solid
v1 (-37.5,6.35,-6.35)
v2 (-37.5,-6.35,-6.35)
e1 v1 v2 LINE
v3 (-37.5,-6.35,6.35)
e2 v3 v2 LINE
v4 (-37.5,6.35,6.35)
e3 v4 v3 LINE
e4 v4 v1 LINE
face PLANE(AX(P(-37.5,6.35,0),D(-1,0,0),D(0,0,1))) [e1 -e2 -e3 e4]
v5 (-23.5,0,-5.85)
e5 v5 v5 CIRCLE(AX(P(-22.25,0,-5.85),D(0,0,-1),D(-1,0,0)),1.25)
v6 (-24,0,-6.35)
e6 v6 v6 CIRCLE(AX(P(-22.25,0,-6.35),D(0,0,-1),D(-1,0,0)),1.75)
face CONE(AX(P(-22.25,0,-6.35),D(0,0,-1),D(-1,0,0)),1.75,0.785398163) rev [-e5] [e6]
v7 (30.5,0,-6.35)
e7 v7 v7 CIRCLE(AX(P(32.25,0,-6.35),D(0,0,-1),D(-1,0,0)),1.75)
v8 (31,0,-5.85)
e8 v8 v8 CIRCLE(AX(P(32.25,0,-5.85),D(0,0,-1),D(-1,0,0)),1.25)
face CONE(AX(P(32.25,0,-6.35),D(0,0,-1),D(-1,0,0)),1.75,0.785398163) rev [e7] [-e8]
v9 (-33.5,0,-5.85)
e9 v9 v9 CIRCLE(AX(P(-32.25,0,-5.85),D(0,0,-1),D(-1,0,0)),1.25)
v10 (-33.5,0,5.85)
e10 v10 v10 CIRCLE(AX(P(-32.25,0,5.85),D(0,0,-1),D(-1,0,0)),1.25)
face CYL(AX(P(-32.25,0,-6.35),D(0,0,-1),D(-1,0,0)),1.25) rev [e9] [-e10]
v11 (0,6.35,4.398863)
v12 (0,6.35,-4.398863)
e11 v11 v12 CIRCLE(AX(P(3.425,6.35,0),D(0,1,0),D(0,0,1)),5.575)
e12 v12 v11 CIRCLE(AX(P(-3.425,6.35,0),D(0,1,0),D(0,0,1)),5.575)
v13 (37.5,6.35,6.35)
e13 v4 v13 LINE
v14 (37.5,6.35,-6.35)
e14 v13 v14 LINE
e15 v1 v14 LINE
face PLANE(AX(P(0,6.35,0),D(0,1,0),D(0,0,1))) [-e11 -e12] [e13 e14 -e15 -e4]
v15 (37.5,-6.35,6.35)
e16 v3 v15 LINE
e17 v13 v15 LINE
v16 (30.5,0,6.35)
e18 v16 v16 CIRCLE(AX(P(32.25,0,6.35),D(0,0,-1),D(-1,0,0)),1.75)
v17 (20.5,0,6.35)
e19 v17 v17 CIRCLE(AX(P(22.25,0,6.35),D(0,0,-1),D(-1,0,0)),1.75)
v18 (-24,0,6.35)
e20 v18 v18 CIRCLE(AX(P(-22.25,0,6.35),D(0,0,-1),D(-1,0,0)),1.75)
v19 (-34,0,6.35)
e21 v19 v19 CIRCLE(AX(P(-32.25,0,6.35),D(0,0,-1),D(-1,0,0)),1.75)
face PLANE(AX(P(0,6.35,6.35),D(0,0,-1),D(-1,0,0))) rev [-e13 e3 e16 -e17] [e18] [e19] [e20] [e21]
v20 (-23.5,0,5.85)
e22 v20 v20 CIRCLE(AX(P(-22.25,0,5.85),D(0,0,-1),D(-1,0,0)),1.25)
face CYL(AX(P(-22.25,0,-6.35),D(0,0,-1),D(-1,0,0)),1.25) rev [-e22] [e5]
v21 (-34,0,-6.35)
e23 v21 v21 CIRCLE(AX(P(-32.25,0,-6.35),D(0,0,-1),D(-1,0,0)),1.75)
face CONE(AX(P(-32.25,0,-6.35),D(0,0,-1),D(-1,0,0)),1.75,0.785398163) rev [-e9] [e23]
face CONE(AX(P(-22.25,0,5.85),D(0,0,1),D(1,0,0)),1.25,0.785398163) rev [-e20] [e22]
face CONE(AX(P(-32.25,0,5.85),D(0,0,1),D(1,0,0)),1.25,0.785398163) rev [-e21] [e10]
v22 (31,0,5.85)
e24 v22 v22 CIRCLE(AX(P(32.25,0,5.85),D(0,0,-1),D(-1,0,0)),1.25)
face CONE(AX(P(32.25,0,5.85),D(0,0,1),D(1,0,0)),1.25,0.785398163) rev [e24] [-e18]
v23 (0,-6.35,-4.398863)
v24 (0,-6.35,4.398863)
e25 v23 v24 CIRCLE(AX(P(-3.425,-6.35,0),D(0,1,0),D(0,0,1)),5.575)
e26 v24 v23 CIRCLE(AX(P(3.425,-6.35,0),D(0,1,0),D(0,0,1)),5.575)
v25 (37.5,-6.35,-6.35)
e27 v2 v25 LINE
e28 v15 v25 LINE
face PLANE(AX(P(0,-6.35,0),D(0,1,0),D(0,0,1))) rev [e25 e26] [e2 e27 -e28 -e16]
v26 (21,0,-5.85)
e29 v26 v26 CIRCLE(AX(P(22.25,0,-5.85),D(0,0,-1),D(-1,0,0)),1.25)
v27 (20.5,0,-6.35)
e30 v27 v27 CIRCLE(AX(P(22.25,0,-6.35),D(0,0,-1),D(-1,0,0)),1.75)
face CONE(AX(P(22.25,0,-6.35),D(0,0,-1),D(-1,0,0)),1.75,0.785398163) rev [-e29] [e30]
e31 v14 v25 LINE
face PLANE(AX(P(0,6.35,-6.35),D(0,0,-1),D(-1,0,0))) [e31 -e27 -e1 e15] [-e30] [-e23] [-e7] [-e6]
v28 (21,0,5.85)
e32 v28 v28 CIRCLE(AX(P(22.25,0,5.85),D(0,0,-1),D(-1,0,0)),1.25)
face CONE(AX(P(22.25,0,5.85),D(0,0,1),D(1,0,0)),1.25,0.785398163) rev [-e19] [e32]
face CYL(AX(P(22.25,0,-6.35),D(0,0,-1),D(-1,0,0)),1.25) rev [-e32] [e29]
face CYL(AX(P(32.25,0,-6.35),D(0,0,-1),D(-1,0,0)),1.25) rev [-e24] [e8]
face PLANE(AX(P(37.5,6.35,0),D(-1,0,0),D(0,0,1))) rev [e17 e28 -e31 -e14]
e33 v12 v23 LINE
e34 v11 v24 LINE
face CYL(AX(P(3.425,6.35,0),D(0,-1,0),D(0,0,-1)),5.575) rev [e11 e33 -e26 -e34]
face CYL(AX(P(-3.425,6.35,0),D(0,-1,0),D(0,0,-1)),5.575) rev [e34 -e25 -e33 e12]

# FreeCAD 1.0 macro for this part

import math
import FreeCAD as App
import Part
import Sketcher
from FreeCAD import Vector
Q = App.Units.Quantity


def add_polygon(sketch, points):
    """Adds a closed chain of lines whose ends are joined by coincident constraints."""
    first, n = sketch.GeometryCount, len(points)
    for a, b in zip(points, points[1:] + points[:1]):
        sketch.addGeometry(Part.LineSegment(App.Vector(*a, 0), App.Vector(*b, 0)), False)
    for i in range(n):
        sketch.addConstraint(Sketcher.Constraint("Coincident", first + i, 2, first + (i + 1) % n, 1))

doc = App.newDocument("Part")
body = doc.addObject("PartDesign::Body", "Body")

sketch1 = body.newObject("Sketcher::SketchObject", "Sketch")
sketch1.AttachmentSupport = (doc.getObject("XZ_Plane"), [""])
sketch1.MapMode = "FlatFace"
add_polygon(sketch1, [(-37.5, -6.35), (-37.5, 6.35), (37.5, 6.35), (37.5, -6.35)])
sketch1.addGeometry(Part.ArcOfCircle(Part.Circle(Vector(3.425, 0, 0), Vector(0, 0, 1), 5.575), math.radians(0), math.radians(127.904689)), False)
sketch1.addGeometry(Part.ArcOfCircle(Part.Circle(Vector(-3.425, 0, 0), Vector(0, 0, 1), 5.575), math.radians(52.095311), math.radians(307.904689)), False)
sketch1.addGeometry(Part.ArcOfCircle(Part.Circle(Vector(3.425, 0, 0), Vector(0, 0, 1), 5.575), math.radians(-127.904689), math.radians(0)), False)
sketch1.addConstraint([
    Sketcher.Constraint("Coincident", 4, 2, 5, 1),
    Sketcher.Constraint("Coincident", 5, 2, 6, 1),
    Sketcher.Constraint("Tangent", 6, 2, 4, 1),
    Sketcher.Constraint("Vertical", 0),
    Sketcher.Constraint("Horizontal", 1),
    Sketcher.Constraint("Vertical", 2),
    Sketcher.Constraint("Horizontal", 3),
    Sketcher.Constraint("Equal", 4, 5),
    Sketcher.Constraint("Equal", 5, 6),
    Sketcher.Constraint("Symmetric", 4, 3, 5, 3, -1, 1),
    Sketcher.Constraint("Symmetric", 0, 2, 2, 2, -1, 1),
    Sketcher.Constraint("PointOnObject", 4, 3, -1),
    Sketcher.Constraint("PointOnObject", 6, 2, -1),
    Sketcher.Constraint("DistanceX", 1, 1, 1, 2, Q("75 mm")),
    Sketcher.Constraint("DistanceY", 0, 1, 0, 2, Q("12.7 mm")),
    Sketcher.Constraint("DistanceX", -1, 1, 6, 2, Q("9 mm")),
    Sketcher.Constraint("Radius", 4, Q("5.575 mm")),
])
pad1 = body.newObject("PartDesign::Pad", "Pad")
pad1.Profile = sketch1
pad1.Length = 12.7
pad1.Midplane = True

sketch2 = body.newObject("Sketcher::SketchObject", "Sketch001")
sketch2.AttachmentSupport = (doc.getObject("YZ_Plane"), [""])
sketch2.MapMode = "FlatFace"
sketch2.AttachmentOffset = App.Placement(Vector(0, 0, -32.25), App.Rotation())
add_polygon(sketch2, [(0, 6.35), (0, -6.35), (1.75, -6.35), (1.25, -5.85), (1.25, 5.85), (1.75, 6.35)])
sketch2.addConstraint([
    Sketcher.Constraint("Vertical", 0),
    Sketcher.Constraint("Horizontal", 1),
    Sketcher.Constraint("Vertical", 3),
    Sketcher.Constraint("Horizontal", 5),
    Sketcher.Constraint("Symmetric", 0, 2, 5, 2, -1, 1),
    Sketcher.Constraint("Perpendicular", 2, 4),
    Sketcher.Constraint("Vertical", 1, 2, 4, 2),
    Sketcher.Constraint("Equal", 2, 4),
    Sketcher.Constraint("DistanceY", 0, 2, 0, 1, Q("12.7 mm")),
    Sketcher.Constraint("DistanceY", 3, 1, 3, 2, Q("11.7 mm")),
    Sketcher.Constraint("DistanceX", 1, 1, 1, 2, Q("1.75 mm")),
])
groove = body.newObject("PartDesign::Groove", "Groove")
groove.Profile = sketch2
groove.ReferenceAxis = (sketch2, ["V_Axis"])
groove.Angle = 360
doc.recompute()

linearpattern = body.newObject("PartDesign::LinearPattern", "LinearPattern")
linearpattern.Originals = [groove]
linearpattern.Direction = (doc.getObject("X_Axis"), [""])
linearpattern.Mode = "offset"
linearpattern.Offset = 10
linearpattern.Occurrences = 2
body.Tip = linearpattern
doc.recompute()

linearpattern2 = body.newObject("PartDesign::LinearPattern", "LinearPattern001")
linearpattern2.Originals = [groove]
linearpattern2.Direction = (doc.getObject("X_Axis"), [""])
linearpattern2.Mode = "offset"
linearpattern2.Offset = 54.5
linearpattern2.Occurrences = 2
body.Tip = linearpattern2
doc.recompute()

linearpattern3 = body.newObject("PartDesign::LinearPattern", "LinearPattern002")
linearpattern3.Originals = [groove]
linearpattern3.Direction = (doc.getObject("X_Axis"), [""])
linearpattern3.Mode = "offset"
linearpattern3.Offset = 64.5
linearpattern3.Occurrences = 2
body.Tip = linearpattern3

doc.recompute()
